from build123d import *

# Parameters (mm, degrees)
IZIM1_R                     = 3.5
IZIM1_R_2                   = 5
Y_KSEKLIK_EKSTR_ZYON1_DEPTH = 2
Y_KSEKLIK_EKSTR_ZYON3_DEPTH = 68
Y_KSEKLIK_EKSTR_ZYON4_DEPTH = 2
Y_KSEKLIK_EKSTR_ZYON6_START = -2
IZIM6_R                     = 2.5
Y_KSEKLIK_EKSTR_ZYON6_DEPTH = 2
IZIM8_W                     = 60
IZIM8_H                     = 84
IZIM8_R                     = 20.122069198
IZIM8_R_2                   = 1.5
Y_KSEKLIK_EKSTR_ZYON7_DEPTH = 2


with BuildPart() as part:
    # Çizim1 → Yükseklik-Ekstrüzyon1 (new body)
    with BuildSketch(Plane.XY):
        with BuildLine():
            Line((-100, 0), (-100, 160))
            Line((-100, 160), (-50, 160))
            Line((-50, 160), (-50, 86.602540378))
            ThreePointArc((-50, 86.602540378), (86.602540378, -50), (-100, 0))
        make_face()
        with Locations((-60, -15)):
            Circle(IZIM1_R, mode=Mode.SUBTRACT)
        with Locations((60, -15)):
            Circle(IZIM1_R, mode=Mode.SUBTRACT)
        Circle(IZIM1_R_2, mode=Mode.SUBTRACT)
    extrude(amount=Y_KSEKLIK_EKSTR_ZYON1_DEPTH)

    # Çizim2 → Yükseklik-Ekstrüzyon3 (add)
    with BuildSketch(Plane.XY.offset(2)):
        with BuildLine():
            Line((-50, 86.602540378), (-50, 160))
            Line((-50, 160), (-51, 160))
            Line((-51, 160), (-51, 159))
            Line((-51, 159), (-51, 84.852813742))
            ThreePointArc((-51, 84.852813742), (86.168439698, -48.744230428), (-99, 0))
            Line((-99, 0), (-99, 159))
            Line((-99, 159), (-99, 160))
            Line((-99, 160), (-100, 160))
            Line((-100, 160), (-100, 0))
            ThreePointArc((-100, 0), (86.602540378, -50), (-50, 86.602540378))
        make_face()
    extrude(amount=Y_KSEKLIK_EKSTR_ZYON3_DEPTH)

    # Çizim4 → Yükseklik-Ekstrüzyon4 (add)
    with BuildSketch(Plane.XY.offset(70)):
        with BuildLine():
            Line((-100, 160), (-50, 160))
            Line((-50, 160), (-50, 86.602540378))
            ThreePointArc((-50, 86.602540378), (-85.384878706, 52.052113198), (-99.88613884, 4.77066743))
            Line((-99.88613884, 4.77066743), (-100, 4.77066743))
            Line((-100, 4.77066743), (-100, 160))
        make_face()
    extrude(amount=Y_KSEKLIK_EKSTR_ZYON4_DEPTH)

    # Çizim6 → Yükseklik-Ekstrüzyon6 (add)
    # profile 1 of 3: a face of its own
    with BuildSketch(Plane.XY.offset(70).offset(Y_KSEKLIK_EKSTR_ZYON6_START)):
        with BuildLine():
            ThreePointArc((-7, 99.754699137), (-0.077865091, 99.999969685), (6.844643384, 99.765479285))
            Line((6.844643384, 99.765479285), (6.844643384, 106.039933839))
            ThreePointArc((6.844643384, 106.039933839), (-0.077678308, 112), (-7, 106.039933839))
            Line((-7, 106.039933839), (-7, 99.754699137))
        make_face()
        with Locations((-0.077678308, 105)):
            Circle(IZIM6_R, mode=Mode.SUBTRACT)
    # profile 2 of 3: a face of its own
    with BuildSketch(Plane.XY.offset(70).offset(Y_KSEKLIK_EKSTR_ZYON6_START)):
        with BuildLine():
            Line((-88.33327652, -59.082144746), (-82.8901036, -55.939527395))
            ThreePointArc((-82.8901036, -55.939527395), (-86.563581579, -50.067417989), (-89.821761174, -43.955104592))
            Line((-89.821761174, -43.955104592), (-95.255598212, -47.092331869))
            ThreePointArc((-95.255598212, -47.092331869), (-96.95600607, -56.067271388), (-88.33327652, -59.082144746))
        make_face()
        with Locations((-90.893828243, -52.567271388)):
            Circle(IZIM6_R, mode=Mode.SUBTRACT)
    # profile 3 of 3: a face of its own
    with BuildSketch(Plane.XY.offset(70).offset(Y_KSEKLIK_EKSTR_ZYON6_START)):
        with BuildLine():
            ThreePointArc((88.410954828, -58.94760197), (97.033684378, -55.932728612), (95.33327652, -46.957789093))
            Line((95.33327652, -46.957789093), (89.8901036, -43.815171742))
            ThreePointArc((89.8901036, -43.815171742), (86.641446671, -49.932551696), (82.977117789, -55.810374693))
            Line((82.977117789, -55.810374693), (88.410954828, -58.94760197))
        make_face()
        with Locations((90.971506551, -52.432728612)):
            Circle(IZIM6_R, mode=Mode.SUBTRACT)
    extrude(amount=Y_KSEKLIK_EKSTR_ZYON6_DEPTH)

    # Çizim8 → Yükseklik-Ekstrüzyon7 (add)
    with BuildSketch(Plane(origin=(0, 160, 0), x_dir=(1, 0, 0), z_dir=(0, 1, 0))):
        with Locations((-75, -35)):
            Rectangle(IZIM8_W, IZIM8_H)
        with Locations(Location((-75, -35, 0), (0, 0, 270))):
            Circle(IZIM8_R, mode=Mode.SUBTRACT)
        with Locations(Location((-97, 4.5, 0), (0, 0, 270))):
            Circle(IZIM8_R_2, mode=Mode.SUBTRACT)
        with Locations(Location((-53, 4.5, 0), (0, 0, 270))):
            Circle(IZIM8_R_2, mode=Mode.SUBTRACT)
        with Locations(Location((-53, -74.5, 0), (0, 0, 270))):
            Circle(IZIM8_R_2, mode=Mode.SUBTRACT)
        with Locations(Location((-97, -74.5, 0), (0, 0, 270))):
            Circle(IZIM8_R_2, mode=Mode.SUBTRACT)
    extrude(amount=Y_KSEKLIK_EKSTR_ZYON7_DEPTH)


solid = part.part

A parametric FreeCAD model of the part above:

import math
import FreeCAD as App
import Part
import Sketcher

V = App.Vector
Q = App.Units.Quantity


def add_polygon(sketch, points):
    """Adds a closed chain of lines whose ends are joined by coincident constraints."""
    first, n = sketch.GeometryCount, len(points)
    for a, b in zip(points, points[1:] + points[:1]):
        sketch.addGeometry(Part.LineSegment(App.Vector(*a, 0), App.Vector(*b, 0)), False)
    for i in range(n):
        sketch.addConstraint(Sketcher.Constraint("Coincident", first + i, 2, first + (i + 1) % n, 1))

doc = App.newDocument("Part")
body = doc.addObject("PartDesign::Body", "Body")

# Sketch on XY plane
sketch1 = body.newObject("Sketcher::SketchObject", "Sketch")
sketch1.AttachmentSupport = (doc.getObject("XY_Plane"), [""])
sketch1.MapMode = "FlatFace"
sketch1.addGeometry(Part.LineSegment(V(-100, 160, 0), V(-100, 0, 0)), False)
sketch1.addGeometry(Part.ArcOfCircle(Part.Circle(V(0, 0, 0), V(0, 0, 1), 100), math.radians(180), math.radians(480)), False)
sketch1.addGeometry(Part.LineSegment(V(-50, 86.6, 0), V(-50, 160, 0)), False)
sketch1.addGeometry(Part.LineSegment(V(-50, 160, 0), V(-100, 160, 0)), False)
sketch1.addGeometry(Part.Circle(V(60, -15, 0), V(0, 0, 1), 3.5), False)
sketch1.addGeometry(Part.Circle(V(-60, -15, 0), V(0, 0, 1), 3.5), False)
sketch1.addGeometry(Part.Circle(V(0, 0, 0), V(0, 0, 1), 5), False)
sketch1.addConstraint(Sketcher.Constraint("Tangent", 0, 2, 1, 1))
sketch1.addConstraint(Sketcher.Constraint("Coincident", 1, 2, 2, 1))
sketch1.addConstraint(Sketcher.Constraint("Coincident", 2, 2, 3, 1))
sketch1.addConstraint(Sketcher.Constraint("Coincident", 3, 2, 0, 1))
sketch1.addConstraint(Sketcher.Constraint("Vertical", 0))
sketch1.addConstraint(Sketcher.Constraint("Vertical", 2))
sketch1.addConstraint(Sketcher.Constraint("Horizontal", 3))
sketch1.addConstraint(Sketcher.Constraint("Coincident", 1, 3, -1, 1))
sketch1.addConstraint(Sketcher.Constraint("Coincident", 6, 3, -1, 1))
sketch1.addConstraint(Sketcher.Constraint("Equal", 4, 5))
sketch1.addConstraint(Sketcher.Constraint("Symmetric", 4, 3, 5, 3, -2))
sketch1.addConstraint(Sketcher.Constraint("Diameter", 4, 7.0))
sketch1.addConstraint(Sketcher.Constraint("Diameter", 6, 10.0))
sketch1.addConstraint(Sketcher.Constraint("Radius", 1, 100.0))
sketch1.addConstraint(Sketcher.Constraint("DistanceX", 3, 2, 3, 1, 50.0))
sketch1.addConstraint(Sketcher.Constraint("DistanceY", 0, 2, 0, 1, 160.0))
sketch1.addConstraint(Sketcher.Constraint("DistanceX", -1, 1, 4, 3, 60.0))
sketch1.addConstraint(Sketcher.Constraint("DistanceY", 4, 3, -1, 1, 15.0))
pad1 = body.newObject("PartDesign::Pad", "Pad")
pad1.Profile = sketch1
pad1.Length = 2

# Sketch on XY plane
sketch2 = body.newObject("Sketcher::SketchObject", "Sketch001")
sketch2.AttachmentSupport = (doc.getObject("XY_Plane"), [""])
sketch2.MapMode = "FlatFace"
sketch2.AttachmentOffset = App.Placement(V(0, 0, 2), App.Rotation())
sketch2.addGeometry(Part.LineSegment(V(-50, 86.6, 0), V(-50, 160, 0)), False)
sketch2.addGeometry(Part.LineSegment(V(-50, 160, 0), V(-51, 160, 0)), False)
sketch2.addGeometry(Part.LineSegment(V(-51, 160, 0), V(-51, 84.9, 0)), False)
sketch2.addGeometry(Part.ArcOfCircle(Part.Circle(V(0, 0, 0), V(0, 0, 1), 99), math.radians(180), math.radians(481)), False)
sketch2.addGeometry(Part.LineSegment(V(-99, 0, 0), V(-99, 160, 0)), False)
sketch2.addGeometry(Part.LineSegment(V(-99, 160, 0), V(-100, 160, 0)), False)
sketch2.addGeometry(Part.LineSegment(V(-100, 160, 0), V(-100, 0, 0)), False)
sketch2.addGeometry(Part.ArcOfCircle(Part.Circle(V(0, 0, 0), V(0, 0, 1), 100), math.radians(180), math.radians(480)), False)
sketch2.addConstraint(Sketcher.Constraint("Coincident", 0, 2, 1, 1))
sketch2.addConstraint(Sketcher.Constraint("Coincident", 1, 2, 2, 1))
sketch2.addConstraint(Sketcher.Constraint("Coincident", 2, 2, 3, 2))
sketch2.addConstraint(Sketcher.Constraint("Tangent", 3, 1, 4, 1))
sketch2.addConstraint(Sketcher.Constraint("Coincident", 4, 2, 5, 1))
sketch2.addConstraint(Sketcher.Constraint("Coincident", 5, 2, 6, 1))
sketch2.addConstraint(Sketcher.Constraint("Tangent", 6, 2, 7, 1))
sketch2.addConstraint(Sketcher.Constraint("Coincident", 7, 2, 0, 1))
sketch2.addConstraint(Sketcher.Constraint("Vertical", 0))
sketch2.addConstraint(Sketcher.Constraint("Horizontal", 1))
sketch2.addConstraint(Sketcher.Constraint("Vertical", 2))
sketch2.addConstraint(Sketcher.Constraint("Vertical", 4))
sketch2.addConstraint(Sketcher.Constraint("Horizontal", 5))
sketch2.addConstraint(Sketcher.Constraint("Vertical", 6))
sketch2.addConstraint(Sketcher.Constraint("Coincident", 3, 3, -1, 1))
sketch2.addConstraint(Sketcher.Constraint("Coincident", 7, 3, -1, 1))
sketch2.addConstraint(Sketcher.Constraint("Horizontal", 1, 2, 4, 2))
sketch2.addConstraint(Sketcher.Constraint("Equal", 1, 5))
sketch2.addConstraint(Sketcher.Constraint("Radius", 3, 99.0))
sketch2.addConstraint(Sketcher.Constraint("Radius", 7, 100.0))
sketch2.addConstraint(Sketcher.Constraint("DistanceY", 4, 1, 4, 2, 160.0))
sketch2.addConstraint(Sketcher.Constraint("DistanceX", 0, 2, -1, 1, 50.0))
pad2 = body.newObject("PartDesign::Pad", "Pad001")
pad2.Profile = sketch2
pad2.Length = 68

# Sketch on XY plane
sketch3 = body.newObject("Sketcher::SketchObject", "Sketch002")
sketch3.AttachmentSupport = (doc.getObject("XY_Plane"), [""])
sketch3.MapMode = "FlatFace"
sketch3.AttachmentOffset = App.Placement(V(0, 0, 70), App.Rotation())
sketch3.addGeometry(Part.LineSegment(V(-50, 160, 0), V(-100, 160, 0)), False)
sketch3.addGeometry(Part.LineSegment(V(-100, 160, 0), V(-100, 4.77, 0)), False)
sketch3.addGeometry(Part.LineSegment(V(-100, 4.77, 0), V(-99.89, 4.77, 0)), False)
sketch3.addGeometry(Part.ArcOfCircle(Part.Circle(V(0, 0, 0), V(0, 0, 1), 100), math.radians(120), math.radians(177)), False)
sketch3.addGeometry(Part.LineSegment(V(-50, 86.6, 0), V(-50, 160, 0)), False)
sketch3.addConstraint(Sketcher.Constraint("Coincident", 0, 2, 1, 1))
sketch3.addConstraint(Sketcher.Constraint("Coincident", 1, 2, 2, 1))
sketch3.addConstraint(Sketcher.Constraint("Coincident", 2, 2, 3, 2))
sketch3.addConstraint(Sketcher.Constraint("Coincident", 3, 1, 4, 1))
sketch3.addConstraint(Sketcher.Constraint("Coincident", 4, 2, 0, 1))
sketch3.addConstraint(Sketcher.Constraint("Horizontal", 0))
sketch3.addConstraint(Sketcher.Constraint("Vertical", 1))
sketch3.addConstraint(Sketcher.Constraint("Horizontal", 2))
sketch3.addConstraint(Sketcher.Constraint("Vertical", 4))
sketch3.addConstraint(Sketcher.Constraint("Coincident", 3, 3, -1, 1))
sketch3.addConstraint(Sketcher.Constraint("Radius", 3, 100.0))
sketch3.addConstraint(Sketcher.Constraint("DistanceX", 0, 2, 0, 1, 50.0))
sketch3.addConstraint(Sketcher.Constraint("DistanceX", 0, 2, -1, 1, 100.0))
sketch3.addConstraint(Sketcher.Constraint("DistanceY", -1, 1, 0, 2, 160.0))
sketch3.addConstraint(Sketcher.Constraint("DistanceX", 2, 1, 2, 2, 0.113861))
pad3 = body.newObject("PartDesign::Pad", "Pad002")
pad3.Profile = sketch3
pad3.Length = 2

# Sketch on XY plane
sketch4 = body.newObject("Sketcher::SketchObject", "Sketch003")
sketch4.AttachmentSupport = (doc.getObject("XY_Plane"), [""])
sketch4.MapMode = "FlatFace"
sketch4.AttachmentOffset = App.Placement(V(0, 0, 68), App.Rotation())
sketch4.addGeometry(Part.ArcOfCircle(Part.Circle(V(0, 0, 0), V(0, 0, 1), 100), math.radians(86.08), math.radians(94.01)), False)
sketch4.addGeometry(Part.LineSegment(V(6.8, 99.8, 0), V(6.8, 106, 0)), False)
sketch4.addGeometry(Part.ArcOfCircle(Part.Circle(V(-0.1, 105, 0), V(0, 0, 1), 7), math.radians(9), math.radians(171)), False)
sketch4.addGeometry(Part.LineSegment(V(-7, 106, 0), V(-7, 99.8, 0)), False)
sketch4.addGeometry(Part.Circle(V(-0.1, 105, 0), V(0, 0, 1), 2.5), False)
sketch4.addGeometry(Part.LineSegment(V(-88.3, -59.1, 0), V(-82.9, -55.9, 0)), False)
sketch4.addGeometry(Part.ArcOfCircle(Part.Circle(V(0, 0, 0), V(0, 0, 1), 100), math.radians(-153.92), math.radians(-145.99)), False)
sketch4.addGeometry(Part.LineSegment(V(-89.8, -44, 0), V(-95.3, -47.1, 0)), False)
sketch4.addGeometry(Part.ArcOfCircle(Part.Circle(V(-90.9, -52.6, 0), V(0, 0, 1), 7), math.radians(129), math.radians(291)), False)
sketch4.addGeometry(Part.Circle(V(-90.9, -52.6, 0), V(0, 0, 1), 2.5), False)
sketch4.addGeometry(Part.ArcOfCircle(Part.Circle(V(91, -52.4, 0), V(0, 0, 1), 7), math.radians(-111), math.radians(51)), False)
sketch4.addGeometry(Part.LineSegment(V(95.3, -47, 0), V(89.9, -43.8, 0)), False)
sketch4.addGeometry(Part.ArcOfCircle(Part.Circle(V(0, 0, 0), V(0, 0, 1), 100), math.radians(-33.92), math.radians(-25.99)), False)
sketch4.addGeometry(Part.LineSegment(V(83, -55.8, 0), V(88.4, -58.9, 0)), False)
sketch4.addGeometry(Part.Circle(V(91, -52.4, 0), V(0, 0, 1), 2.5), False)
sketch4.addConstraint(Sketcher.Constraint("Coincident", 0, 1, 1, 1))
sketch4.addConstraint(Sketcher.Constraint("Coincident", 1, 2, 2, 1))
sketch4.addConstraint(Sketcher.Constraint("Coincident", 2, 2, 3, 1))
sketch4.addConstraint(Sketcher.Constraint("Coincident", 3, 2, 0, 2))
sketch4.addConstraint(Sketcher.Constraint("Coincident", 5, 2, 6, 2))
sketch4.addConstraint(Sketcher.Constraint("Coincident", 6, 1, 7, 1))
sketch4.addConstraint(Sketcher.Constraint("Coincident", 7, 2, 8, 1))
sketch4.addConstraint(Sketcher.Constraint("Coincident", 8, 2, 5, 1))
sketch4.addConstraint(Sketcher.Constraint("Coincident", 10, 2, 11, 1))
sketch4.addConstraint(Sketcher.Constraint("Coincident", 11, 2, 12, 2))
sketch4.addConstraint(Sketcher.Constraint("Coincident", 12, 1, 13, 1))
sketch4.addConstraint(Sketcher.Constraint("Coincident", 13, 2, 10, 1))
sketch4.addConstraint(Sketcher.Constraint("Vertical", 1))
sketch4.addConstraint(Sketcher.Constraint("Vertical", 3))
sketch4.addConstraint(Sketcher.Constraint("Coincident", 0, 3, -1, 1))
sketch4.addConstraint(Sketcher.Constraint("Coincident", 6, 3, -1, 1))
sketch4.addConstraint(Sketcher.Constraint("Coincident", 12, 3, -1, 1))
sketch4.addConstraint(Sketcher.Constraint("Coincident", 4, 3, 2, 3))
sketch4.addConstraint(Sketcher.Constraint("Coincident", 9, 3, 8, 3))
sketch4.addConstraint(Sketcher.Constraint("Coincident", 14, 3, 10, 3))
sketch4.addConstraint(Sketcher.Constraint("Equal", 0, 6))
sketch4.addConstraint(Sketcher.Constraint("Equal", 2, 8))
sketch4.addConstraint(Sketcher.Constraint("Equal", 4, 9))
sketch4.addConstraint(Sketcher.Constraint("Equal", 8, 10))
sketch4.addConstraint(Sketcher.Constraint("Equal", 6, 12))
sketch4.addConstraint(Sketcher.Constraint("Equal", 9, 14))
sketch4.addConstraint(Sketcher.Constraint("Parallel", 5, 7))
sketch4.addConstraint(Sketcher.Constraint("Parallel", 11, 13))
sketch4.addConstraint(Sketcher.Constraint("Horizontal", 1, 2, 2, 2))
sketch4.addConstraint(Sketcher.Constraint("Equal", 5, 11))
sketch4.addConstraint(Sketcher.Constraint("Equal", 7, 13))
sketch4.addConstraint(Sketcher.Constraint("Diameter", 4, 5.0))
sketch4.addConstraint(Sketcher.Constraint("Radius", 0, 100.0))
sketch4.addConstraint(Sketcher.Constraint("Radius", 2, 7.0))
sketch4.addConstraint(Sketcher.Constraint("Angle", 5, Q("30 deg")))
sketch4.addConstraint(Sketcher.Constraint("Angle", 11, Q("150 deg")))
sketch4.addConstraint(Sketcher.Constraint("DistanceY", -1, 1, 2, 3, 105.0))
sketch4.addConstraint(Sketcher.Constraint("DistanceX", 2, 2, -1, 1, 7.0))
sketch4.addConstraint(Sketcher.Constraint("DistanceX", 7, 2, -1, 1, 95.255598))
sketch4.addConstraint(Sketcher.Constraint("DistanceY", 13, 2, -1, 1, 58.947602))
sketch4.addConstraint(Sketcher.Constraint("DistanceY", 1, 1, 1, 2, 6.274455))
sketch4.addConstraint(Sketcher.Constraint("DistanceX", 8, 3, -1, 1, 90.893828))
sketch4.addConstraint(Sketcher.Constraint("DistanceY", 8, 3, -1, 1, 52.567271))
sketch4.addConstraint(Sketcher.Constraint("DistanceY", 10, 3, -1, 1, 52.432729))
sketch4.addConstraint(Sketcher.Constraint("DistanceY", 10, 2, -1, 1, 46.957789))
pad4 = body.newObject("PartDesign::Pad", "Pad003")
pad4.Profile = sketch4
pad4.Length = 2

# Sketch on XZ plane
sketch5 = body.newObject("Sketcher::SketchObject", "Sketch004")
sketch5.AttachmentSupport = (doc.getObject("XZ_Plane"), [""])
sketch5.MapMode = "FlatFace"
sketch5.AttachmentOffset = App.Placement(V(0, 0, -160), App.Rotation())
add_polygon(sketch5, [(-105, -7), (-105, 77), (-45, 77), (-45, -7)])  # lines 0-3
sketch5.addGeometry(Part.Circle(V(-97, 74.5, 0), V(0, 0, 1), 1.5), False)  # 4
sketch5.addGeometry(Part.Circle(V(-53, 74.5, 0), V(0, 0, 1), 1.5), False)  # 5
sketch5.addGeometry(Part.Circle(V(-97, -4.5, 0), V(0, 0, 1), 1.5), False)  # 6
sketch5.addGeometry(Part.Circle(V(-75, 35, 0), V(0, 0, 1), 20.1), False)  # 7
sketch5.addGeometry(Part.Circle(V(-53, -4.5, 0), V(0, 0, 1), 1.5), False)  # 8
sketch5.addConstraint(Sketcher.Constraint("Vertical", 0))
sketch5.addConstraint(Sketcher.Constraint("Horizontal", 1))
sketch5.addConstraint(Sketcher.Constraint("Vertical", 2))
sketch5.addConstraint(Sketcher.Constraint("Horizontal", 3))
sketch5.addConstraint(Sketcher.Constraint("Equal", 4, 5))
sketch5.addConstraint(Sketcher.Constraint("Equal", 5, 6))
sketch5.addConstraint(Sketcher.Constraint("Equal", 6, 8))
sketch5.addConstraint(Sketcher.Constraint("Horizontal", 4, 3, 5, 3))
sketch5.addConstraint(Sketcher.Constraint("Horizontal", 6, 3, 8, 3))
sketch5.addConstraint(Sketcher.Constraint("Vertical", 4, 3, 6, 3))
sketch5.addConstraint(Sketcher.Constraint("Vertical", 5, 3, 8, 3))
sketch5.addConstraint(Sketcher.Constraint("Diameter", 4, 3.0))
sketch5.addConstraint(Sketcher.Constraint("DistanceX", 1, 1, 1, 2, 60.0))
sketch5.addConstraint(Sketcher.Constraint("DistanceY", 0, 1, 0, 2, 84.0))
sketch5.addConstraint(Sketcher.Constraint("DistanceX", 4, 3, -1, 1, 97.0))
sketch5.addConstraint(Sketcher.Constraint("DistanceX", 5, 3, -1, 1, 53.0))
sketch5.addConstraint(Sketcher.Constraint("DistanceX", 7, 3, -1, 1, 75.0))
sketch5.addConstraint(Sketcher.Constraint("DistanceY", -1, 1, 7, 3, 35.0))
sketch5.addConstraint(Sketcher.Constraint("DistanceX", 0, 2, -1, 1, 105.0))
sketch5.addConstraint(Sketcher.Constraint("DistanceY", -1, 1, 0, 2, 77.0))
sketch5.addConstraint(Sketcher.Constraint("DistanceY", 6, 3, 4, 3, 79.0))
sketch5.addConstraint(Sketcher.Constraint("DistanceY", -1, 1, 4, 3, 74.5))
sketch5.addConstraint(Sketcher.Constraint("Diameter", 7, 40.244138))
pad5 = body.newObject("PartDesign::Pad", "Pad004")
pad5.Profile = sketch5
pad5.Length = 2
pad5.Reversed = True

doc.recompute()
